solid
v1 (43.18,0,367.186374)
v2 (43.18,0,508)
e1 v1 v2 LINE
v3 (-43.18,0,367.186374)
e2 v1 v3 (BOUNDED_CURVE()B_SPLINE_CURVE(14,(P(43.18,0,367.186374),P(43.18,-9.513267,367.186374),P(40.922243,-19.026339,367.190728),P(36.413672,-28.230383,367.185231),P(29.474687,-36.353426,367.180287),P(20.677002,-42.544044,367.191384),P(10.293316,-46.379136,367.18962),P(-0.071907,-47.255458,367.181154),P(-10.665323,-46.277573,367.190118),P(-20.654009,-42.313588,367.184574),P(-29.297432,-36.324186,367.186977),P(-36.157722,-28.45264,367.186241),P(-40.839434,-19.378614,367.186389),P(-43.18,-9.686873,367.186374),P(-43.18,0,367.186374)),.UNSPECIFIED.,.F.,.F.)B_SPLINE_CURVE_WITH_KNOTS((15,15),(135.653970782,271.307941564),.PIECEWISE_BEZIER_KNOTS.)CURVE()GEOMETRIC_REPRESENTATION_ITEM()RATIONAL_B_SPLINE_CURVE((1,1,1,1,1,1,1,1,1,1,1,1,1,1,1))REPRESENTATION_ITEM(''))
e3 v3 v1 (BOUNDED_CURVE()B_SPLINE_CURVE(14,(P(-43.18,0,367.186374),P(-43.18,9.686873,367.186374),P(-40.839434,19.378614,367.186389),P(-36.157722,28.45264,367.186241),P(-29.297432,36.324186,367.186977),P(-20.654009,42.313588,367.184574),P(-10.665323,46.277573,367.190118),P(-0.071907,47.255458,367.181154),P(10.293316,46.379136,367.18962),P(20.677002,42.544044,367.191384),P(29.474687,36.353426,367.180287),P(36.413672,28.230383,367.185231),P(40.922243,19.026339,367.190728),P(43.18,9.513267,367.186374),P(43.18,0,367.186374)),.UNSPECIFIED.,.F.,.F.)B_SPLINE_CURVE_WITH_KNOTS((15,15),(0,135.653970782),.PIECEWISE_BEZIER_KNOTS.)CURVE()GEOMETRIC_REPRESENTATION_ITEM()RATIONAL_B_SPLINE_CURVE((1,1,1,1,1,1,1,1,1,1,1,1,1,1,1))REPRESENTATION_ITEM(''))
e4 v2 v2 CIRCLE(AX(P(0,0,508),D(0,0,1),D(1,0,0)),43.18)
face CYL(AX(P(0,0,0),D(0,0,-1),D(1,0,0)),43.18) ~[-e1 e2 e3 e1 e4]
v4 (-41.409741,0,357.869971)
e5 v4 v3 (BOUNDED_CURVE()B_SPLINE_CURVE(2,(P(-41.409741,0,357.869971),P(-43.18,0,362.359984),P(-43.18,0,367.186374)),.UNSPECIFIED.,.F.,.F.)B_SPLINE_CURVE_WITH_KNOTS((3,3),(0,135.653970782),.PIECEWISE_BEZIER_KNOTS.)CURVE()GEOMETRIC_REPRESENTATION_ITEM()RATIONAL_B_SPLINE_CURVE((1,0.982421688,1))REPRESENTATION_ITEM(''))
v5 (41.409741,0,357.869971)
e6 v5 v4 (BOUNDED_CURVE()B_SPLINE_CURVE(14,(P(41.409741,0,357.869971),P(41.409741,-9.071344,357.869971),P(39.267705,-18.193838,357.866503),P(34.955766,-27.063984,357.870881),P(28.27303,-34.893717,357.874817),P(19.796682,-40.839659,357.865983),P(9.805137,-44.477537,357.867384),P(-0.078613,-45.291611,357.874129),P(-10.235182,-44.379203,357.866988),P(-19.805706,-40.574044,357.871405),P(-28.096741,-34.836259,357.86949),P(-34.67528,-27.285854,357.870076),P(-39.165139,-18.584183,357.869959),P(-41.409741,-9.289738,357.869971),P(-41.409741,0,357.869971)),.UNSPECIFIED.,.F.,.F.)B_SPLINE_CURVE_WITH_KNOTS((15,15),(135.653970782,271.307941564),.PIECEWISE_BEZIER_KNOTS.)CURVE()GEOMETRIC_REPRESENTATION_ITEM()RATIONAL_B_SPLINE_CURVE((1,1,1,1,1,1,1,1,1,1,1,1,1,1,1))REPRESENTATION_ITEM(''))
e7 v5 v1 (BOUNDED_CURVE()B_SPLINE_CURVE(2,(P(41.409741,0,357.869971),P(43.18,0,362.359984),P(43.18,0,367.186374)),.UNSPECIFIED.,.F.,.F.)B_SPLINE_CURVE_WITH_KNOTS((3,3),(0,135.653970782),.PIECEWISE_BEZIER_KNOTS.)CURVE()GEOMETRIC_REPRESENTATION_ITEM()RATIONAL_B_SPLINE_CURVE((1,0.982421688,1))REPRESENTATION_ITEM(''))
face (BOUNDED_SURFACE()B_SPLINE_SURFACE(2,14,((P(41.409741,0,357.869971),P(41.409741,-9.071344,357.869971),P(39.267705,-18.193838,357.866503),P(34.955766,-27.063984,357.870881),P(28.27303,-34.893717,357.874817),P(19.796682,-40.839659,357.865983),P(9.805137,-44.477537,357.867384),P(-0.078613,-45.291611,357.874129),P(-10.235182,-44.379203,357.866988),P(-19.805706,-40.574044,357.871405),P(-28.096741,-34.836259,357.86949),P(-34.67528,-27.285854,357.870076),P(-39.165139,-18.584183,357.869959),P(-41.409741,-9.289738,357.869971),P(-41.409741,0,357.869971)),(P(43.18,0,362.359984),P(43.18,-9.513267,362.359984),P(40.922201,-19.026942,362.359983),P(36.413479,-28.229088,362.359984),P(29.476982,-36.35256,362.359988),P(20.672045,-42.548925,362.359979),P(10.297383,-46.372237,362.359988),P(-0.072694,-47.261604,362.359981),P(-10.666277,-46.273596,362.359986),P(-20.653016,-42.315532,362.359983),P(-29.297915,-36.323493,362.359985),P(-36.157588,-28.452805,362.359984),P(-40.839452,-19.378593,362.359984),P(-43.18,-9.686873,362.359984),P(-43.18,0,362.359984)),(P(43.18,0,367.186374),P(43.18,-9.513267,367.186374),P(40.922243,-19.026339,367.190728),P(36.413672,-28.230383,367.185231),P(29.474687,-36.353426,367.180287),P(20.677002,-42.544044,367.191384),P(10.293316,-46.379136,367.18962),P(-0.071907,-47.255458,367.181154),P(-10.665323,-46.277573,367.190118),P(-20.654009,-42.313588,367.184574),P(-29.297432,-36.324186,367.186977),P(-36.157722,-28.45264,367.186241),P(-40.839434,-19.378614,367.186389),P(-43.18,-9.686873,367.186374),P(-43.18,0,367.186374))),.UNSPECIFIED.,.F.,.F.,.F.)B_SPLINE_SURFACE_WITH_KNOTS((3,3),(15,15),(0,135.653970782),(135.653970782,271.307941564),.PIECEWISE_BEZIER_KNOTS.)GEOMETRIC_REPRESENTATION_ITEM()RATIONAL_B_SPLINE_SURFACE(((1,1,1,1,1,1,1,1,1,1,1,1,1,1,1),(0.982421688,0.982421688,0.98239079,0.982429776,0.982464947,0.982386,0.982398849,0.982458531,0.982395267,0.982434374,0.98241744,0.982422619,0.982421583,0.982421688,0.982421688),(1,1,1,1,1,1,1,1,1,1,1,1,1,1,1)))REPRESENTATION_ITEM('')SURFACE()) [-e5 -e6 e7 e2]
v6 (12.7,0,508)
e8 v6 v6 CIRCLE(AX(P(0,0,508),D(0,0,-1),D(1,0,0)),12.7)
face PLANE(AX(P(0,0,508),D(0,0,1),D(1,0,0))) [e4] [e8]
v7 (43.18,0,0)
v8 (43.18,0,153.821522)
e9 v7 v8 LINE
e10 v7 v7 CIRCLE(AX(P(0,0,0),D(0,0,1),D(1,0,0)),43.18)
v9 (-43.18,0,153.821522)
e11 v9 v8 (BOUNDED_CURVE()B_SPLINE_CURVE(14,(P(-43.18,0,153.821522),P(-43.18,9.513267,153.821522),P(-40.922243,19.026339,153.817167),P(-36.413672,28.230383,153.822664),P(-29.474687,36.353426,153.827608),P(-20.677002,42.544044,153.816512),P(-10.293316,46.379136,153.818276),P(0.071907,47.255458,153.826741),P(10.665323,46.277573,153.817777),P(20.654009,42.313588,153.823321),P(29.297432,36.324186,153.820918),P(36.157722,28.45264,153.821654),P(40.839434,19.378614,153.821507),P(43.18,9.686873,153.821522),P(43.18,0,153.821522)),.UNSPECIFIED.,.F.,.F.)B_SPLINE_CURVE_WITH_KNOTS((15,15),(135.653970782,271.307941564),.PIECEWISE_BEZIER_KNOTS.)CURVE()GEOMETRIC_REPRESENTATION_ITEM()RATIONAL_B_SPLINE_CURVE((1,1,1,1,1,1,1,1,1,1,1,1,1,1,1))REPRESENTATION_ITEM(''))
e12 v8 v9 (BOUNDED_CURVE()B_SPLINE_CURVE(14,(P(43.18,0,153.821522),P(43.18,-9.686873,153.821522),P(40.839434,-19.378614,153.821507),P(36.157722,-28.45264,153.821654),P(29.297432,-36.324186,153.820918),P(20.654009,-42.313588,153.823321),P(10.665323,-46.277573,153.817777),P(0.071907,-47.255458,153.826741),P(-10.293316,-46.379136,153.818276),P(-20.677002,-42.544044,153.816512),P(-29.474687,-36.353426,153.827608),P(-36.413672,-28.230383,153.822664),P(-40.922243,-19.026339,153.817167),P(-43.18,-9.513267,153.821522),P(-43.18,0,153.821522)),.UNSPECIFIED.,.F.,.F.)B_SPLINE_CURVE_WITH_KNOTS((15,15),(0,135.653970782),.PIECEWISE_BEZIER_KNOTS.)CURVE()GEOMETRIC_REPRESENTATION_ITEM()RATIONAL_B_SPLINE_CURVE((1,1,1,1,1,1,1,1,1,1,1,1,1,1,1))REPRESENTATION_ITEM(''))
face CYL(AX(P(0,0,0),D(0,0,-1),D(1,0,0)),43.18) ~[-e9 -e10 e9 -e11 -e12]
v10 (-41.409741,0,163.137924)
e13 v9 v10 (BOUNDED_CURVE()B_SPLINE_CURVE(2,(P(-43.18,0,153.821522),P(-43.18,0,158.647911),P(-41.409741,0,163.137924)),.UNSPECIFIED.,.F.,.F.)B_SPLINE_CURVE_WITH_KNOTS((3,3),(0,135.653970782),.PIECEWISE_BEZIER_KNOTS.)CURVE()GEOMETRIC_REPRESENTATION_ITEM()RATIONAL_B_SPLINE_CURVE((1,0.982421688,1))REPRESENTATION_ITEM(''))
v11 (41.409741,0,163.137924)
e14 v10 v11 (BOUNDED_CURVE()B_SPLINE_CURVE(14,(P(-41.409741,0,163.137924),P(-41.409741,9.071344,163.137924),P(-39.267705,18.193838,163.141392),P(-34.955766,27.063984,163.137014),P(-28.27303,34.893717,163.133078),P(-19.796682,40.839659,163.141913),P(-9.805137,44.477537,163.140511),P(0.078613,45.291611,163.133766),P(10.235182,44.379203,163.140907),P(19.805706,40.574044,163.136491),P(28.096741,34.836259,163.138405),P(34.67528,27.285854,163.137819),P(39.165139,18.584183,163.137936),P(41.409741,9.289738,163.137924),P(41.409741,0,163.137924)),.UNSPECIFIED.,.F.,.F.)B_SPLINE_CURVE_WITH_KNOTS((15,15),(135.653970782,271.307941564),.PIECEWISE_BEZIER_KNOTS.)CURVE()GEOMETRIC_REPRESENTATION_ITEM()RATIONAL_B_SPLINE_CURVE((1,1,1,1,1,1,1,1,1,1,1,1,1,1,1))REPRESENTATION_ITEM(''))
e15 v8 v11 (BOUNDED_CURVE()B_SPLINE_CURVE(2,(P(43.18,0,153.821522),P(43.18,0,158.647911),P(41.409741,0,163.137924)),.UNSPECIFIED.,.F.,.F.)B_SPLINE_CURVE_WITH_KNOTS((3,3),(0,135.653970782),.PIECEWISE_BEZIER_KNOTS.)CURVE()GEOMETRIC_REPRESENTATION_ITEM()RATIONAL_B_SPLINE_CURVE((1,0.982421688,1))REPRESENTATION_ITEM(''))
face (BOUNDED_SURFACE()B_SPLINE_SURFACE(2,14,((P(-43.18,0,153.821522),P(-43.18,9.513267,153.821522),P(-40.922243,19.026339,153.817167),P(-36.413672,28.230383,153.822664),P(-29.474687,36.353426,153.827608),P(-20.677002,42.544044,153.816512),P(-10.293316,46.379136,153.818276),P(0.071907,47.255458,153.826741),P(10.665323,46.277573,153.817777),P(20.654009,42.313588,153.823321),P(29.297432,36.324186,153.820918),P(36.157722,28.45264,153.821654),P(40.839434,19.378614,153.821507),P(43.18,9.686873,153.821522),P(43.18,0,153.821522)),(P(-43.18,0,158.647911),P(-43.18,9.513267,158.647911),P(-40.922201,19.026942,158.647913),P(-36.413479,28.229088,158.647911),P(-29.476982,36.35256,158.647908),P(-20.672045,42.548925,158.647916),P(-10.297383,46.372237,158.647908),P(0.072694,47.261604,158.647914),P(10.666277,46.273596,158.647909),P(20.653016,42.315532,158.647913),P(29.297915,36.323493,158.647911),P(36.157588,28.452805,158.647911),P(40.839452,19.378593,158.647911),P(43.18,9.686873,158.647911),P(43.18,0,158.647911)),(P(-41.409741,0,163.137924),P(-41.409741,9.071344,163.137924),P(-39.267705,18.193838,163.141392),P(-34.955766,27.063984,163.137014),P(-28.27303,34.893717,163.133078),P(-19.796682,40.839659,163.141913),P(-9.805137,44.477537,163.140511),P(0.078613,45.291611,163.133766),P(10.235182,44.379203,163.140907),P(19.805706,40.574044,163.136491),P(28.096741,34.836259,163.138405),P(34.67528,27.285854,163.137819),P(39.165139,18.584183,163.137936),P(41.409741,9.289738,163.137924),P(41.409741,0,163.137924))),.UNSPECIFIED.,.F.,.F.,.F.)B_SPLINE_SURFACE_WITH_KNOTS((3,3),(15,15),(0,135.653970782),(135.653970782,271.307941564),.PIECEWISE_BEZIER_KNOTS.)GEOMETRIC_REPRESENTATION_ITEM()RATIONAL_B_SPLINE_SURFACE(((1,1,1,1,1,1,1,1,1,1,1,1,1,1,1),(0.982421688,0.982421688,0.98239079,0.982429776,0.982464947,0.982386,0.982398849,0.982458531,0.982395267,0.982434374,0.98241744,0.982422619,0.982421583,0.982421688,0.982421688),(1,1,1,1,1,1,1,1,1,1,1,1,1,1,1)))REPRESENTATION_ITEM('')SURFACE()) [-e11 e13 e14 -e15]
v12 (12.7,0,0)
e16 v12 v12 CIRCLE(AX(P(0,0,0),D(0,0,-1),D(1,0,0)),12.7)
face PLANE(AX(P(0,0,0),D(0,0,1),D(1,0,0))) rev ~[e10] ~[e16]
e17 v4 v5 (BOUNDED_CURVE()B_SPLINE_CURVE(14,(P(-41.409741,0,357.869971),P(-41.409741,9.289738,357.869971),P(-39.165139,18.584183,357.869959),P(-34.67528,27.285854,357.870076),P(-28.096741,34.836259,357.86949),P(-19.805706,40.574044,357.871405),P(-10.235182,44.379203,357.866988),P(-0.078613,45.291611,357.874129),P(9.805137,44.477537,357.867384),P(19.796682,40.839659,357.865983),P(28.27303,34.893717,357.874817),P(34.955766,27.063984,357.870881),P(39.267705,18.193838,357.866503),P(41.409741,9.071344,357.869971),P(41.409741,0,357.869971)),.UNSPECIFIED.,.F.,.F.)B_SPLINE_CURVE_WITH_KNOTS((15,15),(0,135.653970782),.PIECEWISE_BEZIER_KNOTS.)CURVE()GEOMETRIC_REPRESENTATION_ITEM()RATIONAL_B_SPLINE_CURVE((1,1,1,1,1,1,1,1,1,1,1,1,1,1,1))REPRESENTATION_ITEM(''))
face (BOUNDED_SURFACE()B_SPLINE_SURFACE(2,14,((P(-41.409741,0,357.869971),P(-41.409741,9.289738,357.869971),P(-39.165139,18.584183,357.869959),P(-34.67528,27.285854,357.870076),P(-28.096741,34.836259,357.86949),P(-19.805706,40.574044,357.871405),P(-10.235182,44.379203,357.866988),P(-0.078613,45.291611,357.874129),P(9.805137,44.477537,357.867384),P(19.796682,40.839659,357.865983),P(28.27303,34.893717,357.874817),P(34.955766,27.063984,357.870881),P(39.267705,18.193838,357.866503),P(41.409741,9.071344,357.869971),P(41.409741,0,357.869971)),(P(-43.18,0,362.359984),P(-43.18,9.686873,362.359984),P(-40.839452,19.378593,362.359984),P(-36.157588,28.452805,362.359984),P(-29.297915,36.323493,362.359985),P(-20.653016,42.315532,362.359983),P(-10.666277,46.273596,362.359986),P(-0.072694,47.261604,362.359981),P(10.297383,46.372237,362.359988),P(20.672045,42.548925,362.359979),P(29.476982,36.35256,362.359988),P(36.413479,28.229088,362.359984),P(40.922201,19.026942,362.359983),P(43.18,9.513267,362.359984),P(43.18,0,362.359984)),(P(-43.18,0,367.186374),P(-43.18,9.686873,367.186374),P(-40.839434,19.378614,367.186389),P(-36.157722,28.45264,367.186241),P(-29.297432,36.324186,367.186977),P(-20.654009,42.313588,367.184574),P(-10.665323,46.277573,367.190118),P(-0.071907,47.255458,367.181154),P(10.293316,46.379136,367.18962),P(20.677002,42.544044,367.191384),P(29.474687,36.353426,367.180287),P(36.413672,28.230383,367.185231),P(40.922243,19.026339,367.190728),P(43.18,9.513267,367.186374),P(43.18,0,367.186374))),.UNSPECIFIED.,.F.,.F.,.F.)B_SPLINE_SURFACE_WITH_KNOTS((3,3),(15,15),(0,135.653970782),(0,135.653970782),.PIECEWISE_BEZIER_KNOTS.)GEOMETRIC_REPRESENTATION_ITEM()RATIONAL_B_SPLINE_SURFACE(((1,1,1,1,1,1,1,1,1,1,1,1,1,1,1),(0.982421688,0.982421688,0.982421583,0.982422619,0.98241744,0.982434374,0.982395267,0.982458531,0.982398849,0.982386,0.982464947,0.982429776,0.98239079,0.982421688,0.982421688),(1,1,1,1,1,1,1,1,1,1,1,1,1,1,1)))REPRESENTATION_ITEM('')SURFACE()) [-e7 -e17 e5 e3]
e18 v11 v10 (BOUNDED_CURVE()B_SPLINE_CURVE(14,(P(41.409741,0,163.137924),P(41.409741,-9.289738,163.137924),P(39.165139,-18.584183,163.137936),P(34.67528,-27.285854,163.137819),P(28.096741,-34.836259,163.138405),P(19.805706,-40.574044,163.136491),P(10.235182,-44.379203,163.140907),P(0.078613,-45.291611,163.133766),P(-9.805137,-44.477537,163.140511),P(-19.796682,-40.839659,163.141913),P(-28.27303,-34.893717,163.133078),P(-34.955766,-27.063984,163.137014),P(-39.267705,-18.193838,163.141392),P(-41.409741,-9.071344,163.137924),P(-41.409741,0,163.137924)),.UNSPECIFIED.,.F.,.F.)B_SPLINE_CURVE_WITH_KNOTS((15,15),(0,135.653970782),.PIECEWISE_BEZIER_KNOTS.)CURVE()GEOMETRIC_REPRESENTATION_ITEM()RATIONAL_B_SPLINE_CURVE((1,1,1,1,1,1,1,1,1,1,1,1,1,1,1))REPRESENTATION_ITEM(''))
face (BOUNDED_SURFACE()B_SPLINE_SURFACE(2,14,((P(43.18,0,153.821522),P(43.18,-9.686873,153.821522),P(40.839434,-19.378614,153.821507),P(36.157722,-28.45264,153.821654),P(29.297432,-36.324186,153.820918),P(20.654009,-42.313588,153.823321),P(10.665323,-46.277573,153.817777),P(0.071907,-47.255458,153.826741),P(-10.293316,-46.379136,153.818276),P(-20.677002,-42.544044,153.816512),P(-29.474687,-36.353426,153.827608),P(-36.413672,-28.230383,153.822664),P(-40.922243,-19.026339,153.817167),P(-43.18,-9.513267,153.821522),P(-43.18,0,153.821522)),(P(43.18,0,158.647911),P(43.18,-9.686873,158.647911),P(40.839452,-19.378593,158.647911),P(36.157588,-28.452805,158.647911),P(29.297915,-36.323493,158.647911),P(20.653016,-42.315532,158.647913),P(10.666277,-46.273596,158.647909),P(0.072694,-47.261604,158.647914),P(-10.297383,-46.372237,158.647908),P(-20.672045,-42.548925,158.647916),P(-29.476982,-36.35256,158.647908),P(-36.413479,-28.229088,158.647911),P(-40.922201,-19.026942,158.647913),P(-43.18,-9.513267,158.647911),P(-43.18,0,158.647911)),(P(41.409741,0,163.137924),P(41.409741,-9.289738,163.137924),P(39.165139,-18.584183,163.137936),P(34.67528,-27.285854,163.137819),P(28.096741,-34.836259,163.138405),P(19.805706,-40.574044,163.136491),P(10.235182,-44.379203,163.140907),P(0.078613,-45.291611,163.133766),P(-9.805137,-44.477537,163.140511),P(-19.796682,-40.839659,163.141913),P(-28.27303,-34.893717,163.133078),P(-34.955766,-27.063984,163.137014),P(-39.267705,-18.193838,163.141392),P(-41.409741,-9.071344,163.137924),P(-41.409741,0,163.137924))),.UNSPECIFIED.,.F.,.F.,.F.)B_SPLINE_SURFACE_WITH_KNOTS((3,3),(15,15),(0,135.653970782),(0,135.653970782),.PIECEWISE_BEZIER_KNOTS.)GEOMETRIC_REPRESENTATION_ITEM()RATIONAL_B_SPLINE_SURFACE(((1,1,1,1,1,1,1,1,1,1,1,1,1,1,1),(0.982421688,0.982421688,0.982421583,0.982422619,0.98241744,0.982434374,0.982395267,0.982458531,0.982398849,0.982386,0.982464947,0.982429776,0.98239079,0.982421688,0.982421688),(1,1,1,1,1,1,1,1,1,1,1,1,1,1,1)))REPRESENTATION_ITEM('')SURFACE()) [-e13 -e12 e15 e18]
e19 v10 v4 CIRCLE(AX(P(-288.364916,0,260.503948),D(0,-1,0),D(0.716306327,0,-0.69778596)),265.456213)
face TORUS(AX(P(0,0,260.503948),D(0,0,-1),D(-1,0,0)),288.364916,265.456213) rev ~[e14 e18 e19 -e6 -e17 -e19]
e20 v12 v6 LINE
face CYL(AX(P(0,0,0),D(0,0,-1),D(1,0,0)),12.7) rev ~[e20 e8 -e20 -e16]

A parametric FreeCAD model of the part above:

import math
import FreeCAD as App
import Part
import Sketcher

V = App.Vector
Q = App.Units.Quantity


def edges_at(feature, points):
    """Names of the edges that pass closest to the given points."""
    edges = feature.Shape.Edges
    near = lambda p: min(range(len(edges)), key=lambda i: edges[i].distToShape(Part.Vertex(*p))[0])
    return sorted({f"Edge{near(p) + 1}" for p in points})

doc = App.newDocument("Part")
body = doc.addObject("PartDesign::Body", "Body")

# Sketch on XY plane
sketch1 = body.newObject("Sketcher::SketchObject", "Sketch")
sketch1.AttachmentSupport = (doc.getObject("XY_Plane"), [""])
sketch1.MapMode = "FlatFace"
sketch1.addGeometry(Part.Circle(V(0, 0, 0), V(0, 0, 1), 43.18), False)
sketch1.addConstraint([
    Sketcher.Constraint("Coincident", 0, 3, -1, 1),
    Sketcher.Constraint("Diameter", 0, Q("3.4 in")),
])
pad1 = body.newObject("PartDesign::Pad", "Pad")
pad1.Profile = sketch1
pad1.Length = Q("20 in")

# Sketch on XZ plane
sketch2 = body.newObject("Sketcher::SketchObject", "Sketch001")
sketch2.AttachmentSupport = (doc.getObject("XZ_Plane"), [""])
sketch2.MapMode = "FlatFace"
sketch2.addGeometry([
    Part.LineSegment(V(-384.330451, 258.428335, 0), V(-98.216951, 75.272329, 0)),
    Part.ArcOfCircle(Part.Circle(V(-288.364916, 260.503948, 0), V(0, 0, 1), 265.456213), math.radians(-44.24964), math.radians(42.69033)),
    Part.LineSegment(V(-93.24689, 440.492717, 0), V(-384.330451, 258.428335, 0)),
], False)
sketch2.addConstraint([
    Sketcher.Constraint("Coincident", 0, 2, 1, 1),
    Sketcher.Constraint("Coincident", 1, 2, 2, 1),
    Sketcher.Constraint("Coincident", 2, 2, 0, 1),
    Sketcher.Constraint("Radius", 1, 265.456213),
    Sketcher.Constraint("DistanceX", 2, 2, 0, 2, 286.1135),
    Sketcher.Constraint("DistanceX", 0, 2, -1, 1, 98.216951),
    Sketcher.Constraint("DistanceY", -1, 1, 0, 2, 75.272329),
    Sketcher.Constraint("DistanceX", 1, 2, -1, 1, 93.24689),
    Sketcher.Constraint("DistanceY", 0, 2, 1, 3, 185.231619),
    Sketcher.Constraint("DistanceY", 2, 2, 1, 2, 182.064382),
])
groove = body.newObject("PartDesign::Groove", "Groove")
groove.Profile = sketch2
groove.ReferenceAxis = (sketch2, ["V_Axis"])
groove.Angle = 360
doc.recompute()

fillet = body.newObject("PartDesign::Fillet", "Fillet")
fillet.Base = (groove, edges_at(groove, [
    (0, -43.18, 158.762),
    (0, 43.18, 158.762),
    (-22.909, 0, 260.504),
    (0, 43.18, 362.246),
    (0, -43.18, 362.246),
]))
fillet.Radius = Q("1 in")

# Sketch on XY plane
sketch3 = body.newObject("Sketcher::SketchObject", "Sketch002")
sketch3.AttachmentSupport = (doc.getObject("XY_Plane"), [""])
sketch3.MapMode = "FlatFace"
sketch3.addGeometry(Part.Circle(V(0, 0, 0), V(0, 0, 1), 12.7), False)
sketch3.addConstraint([
    Sketcher.Constraint("Coincident", 0, 3, -1, 1),
    Sketcher.Constraint("Diameter", 0, Q("1 in")),
])
pocket1 = body.newObject("PartDesign::Pocket", "Pocket")
pocket1.Profile = sketch3
pocket1.Type = "ThroughAll"
pocket1.Reversed = True

doc.recompute()
